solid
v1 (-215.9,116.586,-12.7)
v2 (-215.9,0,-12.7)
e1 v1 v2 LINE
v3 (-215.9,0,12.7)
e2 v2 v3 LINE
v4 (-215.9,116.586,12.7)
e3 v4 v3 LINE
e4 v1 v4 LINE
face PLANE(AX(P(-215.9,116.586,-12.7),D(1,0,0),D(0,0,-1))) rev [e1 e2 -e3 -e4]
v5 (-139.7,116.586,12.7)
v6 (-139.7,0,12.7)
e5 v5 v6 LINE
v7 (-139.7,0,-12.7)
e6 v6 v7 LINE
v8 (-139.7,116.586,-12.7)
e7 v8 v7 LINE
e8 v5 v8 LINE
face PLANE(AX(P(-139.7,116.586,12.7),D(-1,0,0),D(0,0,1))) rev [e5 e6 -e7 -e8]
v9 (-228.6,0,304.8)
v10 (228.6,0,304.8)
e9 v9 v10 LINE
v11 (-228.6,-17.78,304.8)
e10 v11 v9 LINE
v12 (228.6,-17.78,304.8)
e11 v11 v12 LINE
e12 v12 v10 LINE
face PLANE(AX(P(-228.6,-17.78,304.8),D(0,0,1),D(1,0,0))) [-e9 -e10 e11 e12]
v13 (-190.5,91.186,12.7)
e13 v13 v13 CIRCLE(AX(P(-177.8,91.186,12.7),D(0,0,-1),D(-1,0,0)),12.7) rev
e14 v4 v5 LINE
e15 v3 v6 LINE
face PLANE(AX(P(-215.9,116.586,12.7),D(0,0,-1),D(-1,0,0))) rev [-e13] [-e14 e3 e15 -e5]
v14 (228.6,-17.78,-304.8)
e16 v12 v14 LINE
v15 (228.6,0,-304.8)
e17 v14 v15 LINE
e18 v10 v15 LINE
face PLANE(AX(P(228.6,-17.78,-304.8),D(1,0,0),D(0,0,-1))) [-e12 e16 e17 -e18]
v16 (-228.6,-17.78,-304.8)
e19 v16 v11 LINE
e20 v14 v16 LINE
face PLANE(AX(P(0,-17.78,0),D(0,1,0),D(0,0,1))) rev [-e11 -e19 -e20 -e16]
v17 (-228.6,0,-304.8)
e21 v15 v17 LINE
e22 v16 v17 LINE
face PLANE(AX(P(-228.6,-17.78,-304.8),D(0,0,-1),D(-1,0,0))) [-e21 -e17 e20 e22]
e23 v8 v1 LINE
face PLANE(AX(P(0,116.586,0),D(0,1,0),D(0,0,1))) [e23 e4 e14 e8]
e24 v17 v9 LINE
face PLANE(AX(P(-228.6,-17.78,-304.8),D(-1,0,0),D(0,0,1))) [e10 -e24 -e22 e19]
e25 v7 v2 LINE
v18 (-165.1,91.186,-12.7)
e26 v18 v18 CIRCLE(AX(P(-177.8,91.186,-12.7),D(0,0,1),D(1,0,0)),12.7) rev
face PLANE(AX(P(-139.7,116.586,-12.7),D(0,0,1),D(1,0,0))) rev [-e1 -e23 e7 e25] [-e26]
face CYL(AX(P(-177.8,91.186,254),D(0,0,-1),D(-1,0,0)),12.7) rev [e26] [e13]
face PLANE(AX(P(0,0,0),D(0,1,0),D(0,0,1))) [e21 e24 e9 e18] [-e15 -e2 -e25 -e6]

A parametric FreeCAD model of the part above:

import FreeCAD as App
import Part
import Sketcher
Q = App.Units.Quantity


def add_polygon(sketch, points):
    """Adds a closed chain of lines whose ends are joined by coincident constraints."""
    first, n = sketch.GeometryCount, len(points)
    for a, b in zip(points, points[1:] + points[:1]):
        sketch.addGeometry(Part.LineSegment(App.Vector(*a, 0), App.Vector(*b, 0)), False)
    for i in range(n):
        sketch.addConstraint(Sketcher.Constraint("Coincident", first + i, 2, first + (i + 1) % n, 1))

doc = App.newDocument("Part")
body = doc.addObject("PartDesign::Body", "Body")

# Sketch on XZ plane
sketch1 = body.newObject("Sketcher::SketchObject", "Sketch")
sketch1.AttachmentSupport = (doc.getObject("XZ_Plane"), [""])
sketch1.MapMode = "FlatFace"
add_polygon(sketch1, [(-229, -305), (-229, 305), (229, 305), (229, -305)])  # lines 0-3
add_polygon(sketch1, [(-140, 13), (-216, 13), (-216, -13), (-140, -13)])  # lines 4-7
sketch1.addConstraint([
    Sketcher.Constraint("Vertical", 0),
    Sketcher.Constraint("Horizontal", 1),
    Sketcher.Constraint("Vertical", 2),
    Sketcher.Constraint("Horizontal", 3),
    Sketcher.Constraint("Horizontal", 4),
    Sketcher.Constraint("Vertical", 5),
    Sketcher.Constraint("Horizontal", 6),
    Sketcher.Constraint("Vertical", 7),
    Sketcher.Constraint("Symmetric", 0, 2, 2, 2, -1, 1),
    Sketcher.Constraint("DistanceX", 1, 1, 1, 2, Q("18 in")),
    Sketcher.Constraint("DistanceX", 4, 2, 4, 1, Q("3 in")),
    Sketcher.Constraint("DistanceY", 0, 1, 0, 2, Q("24 in")),
    Sketcher.Constraint("DistanceY", 5, 2, 5, 1, Q("1 in")),
    Sketcher.Constraint("DistanceX", 4, 2, -1, 1, Q("8.5 in")),
    Sketcher.Constraint("DistanceY", -1, 1, 4, 2, Q("0.5 in")),
])
pad1 = body.newObject("PartDesign::Pad", "Pad")
pad1.Profile = sketch1
pad1.Length = Q("0.7 in")
body2 = doc.addObject("PartDesign::Body", "Body001")

# Sketch on XZ plane
sketch2 = body2.newObject("Sketcher::SketchObject", "Sketch001")
sketch2.AttachmentSupport = (doc.getObject("XZ_Plane001"), [""])
sketch2.MapMode = "FlatFace"
add_polygon(sketch2, [(-216, -13), (-216, 13), (-140, 13), (-140, -13)])  # lines 0-3
sketch2.addConstraint([
    Sketcher.Constraint("Vertical", 0),
    Sketcher.Constraint("Horizontal", 1),
    Sketcher.Constraint("Vertical", 2),
    Sketcher.Constraint("Horizontal", 3),
    Sketcher.Constraint("DistanceX", 1, 1, 1, 2, Q("3 in")),
    Sketcher.Constraint("DistanceY", 0, 1, 0, 2, Q("1 in")),
    Sketcher.Constraint("DistanceX", 0, 2, -1, 1, Q("8.5 in")),
    Sketcher.Constraint("DistanceY", -1, 1, 0, 2, Q("0.5 in")),
])
pad2 = body2.newObject("PartDesign::Pad", "Pad001")
pad2.Profile = sketch2
pad2.Length = Q("4.59 in")
pad2.Reversed = True
body.AllowCompound = True
doc.recompute()

boolean = body.newObject("PartDesign::Boolean", "Boolean")
boolean.Type = "Fuse"
boolean.addObjects([body2])

# Sketch on XZ plane
sketch3 = body.newObject("Sketcher::SketchObject", "Sketch002")
sketch3.AttachmentSupport = (doc.getObject("XZ_Plane"), [""])
sketch3.MapMode = "FlatFace"
add_polygon(sketch3, [(-216, -13), (-216, 13), (-140, 13), (-140, -13)])  # lines 0-3
sketch3.addConstraint([
    Sketcher.Constraint("Vertical", 0),
    Sketcher.Constraint("Horizontal", 1),
    Sketcher.Constraint("Vertical", 2),
    Sketcher.Constraint("Horizontal", 3),
    Sketcher.Constraint("DistanceX", 1, 1, 1, 2, Q("3 in")),
    Sketcher.Constraint("DistanceY", 0, 1, 0, 2, Q("1 in")),
    Sketcher.Constraint("DistanceX", 0, 2, -1, 1, Q("8.5 in")),
    Sketcher.Constraint("DistanceY", -1, 1, 0, 2, Q("0.5 in")),
])
pad3 = body.newObject("PartDesign::Pad", "Pad002")
pad3.Profile = sketch3
pad3.Length = Q("0.7 in")

# Sketch on XY plane
sketch4 = body.newObject("Sketcher::SketchObject", "Sketch003")
sketch4.AttachmentSupport = (doc.getObject("XY_Plane"), [""])
sketch4.MapMode = "FlatFace"
sketch4.addGeometry(Part.Circle(App.Vector(-178, 91, 0), App.Vector(0, 0, 1), 13), False)
sketch4.addConstraint([
    Sketcher.Constraint("Diameter", 0, Q("1 in")),
    Sketcher.Constraint("DistanceX", 0, 3, -1, 1, Q("7 in")),
    Sketcher.Constraint("DistanceY", -1, 1, 0, 3, Q("3.59 in")),
])
pocket1 = body.newObject("PartDesign::Pocket", "Pocket")
pocket1.Profile = sketch4
pocket1.Type = "ThroughAll"
pocket1.Midplane = True

doc.recompute()
